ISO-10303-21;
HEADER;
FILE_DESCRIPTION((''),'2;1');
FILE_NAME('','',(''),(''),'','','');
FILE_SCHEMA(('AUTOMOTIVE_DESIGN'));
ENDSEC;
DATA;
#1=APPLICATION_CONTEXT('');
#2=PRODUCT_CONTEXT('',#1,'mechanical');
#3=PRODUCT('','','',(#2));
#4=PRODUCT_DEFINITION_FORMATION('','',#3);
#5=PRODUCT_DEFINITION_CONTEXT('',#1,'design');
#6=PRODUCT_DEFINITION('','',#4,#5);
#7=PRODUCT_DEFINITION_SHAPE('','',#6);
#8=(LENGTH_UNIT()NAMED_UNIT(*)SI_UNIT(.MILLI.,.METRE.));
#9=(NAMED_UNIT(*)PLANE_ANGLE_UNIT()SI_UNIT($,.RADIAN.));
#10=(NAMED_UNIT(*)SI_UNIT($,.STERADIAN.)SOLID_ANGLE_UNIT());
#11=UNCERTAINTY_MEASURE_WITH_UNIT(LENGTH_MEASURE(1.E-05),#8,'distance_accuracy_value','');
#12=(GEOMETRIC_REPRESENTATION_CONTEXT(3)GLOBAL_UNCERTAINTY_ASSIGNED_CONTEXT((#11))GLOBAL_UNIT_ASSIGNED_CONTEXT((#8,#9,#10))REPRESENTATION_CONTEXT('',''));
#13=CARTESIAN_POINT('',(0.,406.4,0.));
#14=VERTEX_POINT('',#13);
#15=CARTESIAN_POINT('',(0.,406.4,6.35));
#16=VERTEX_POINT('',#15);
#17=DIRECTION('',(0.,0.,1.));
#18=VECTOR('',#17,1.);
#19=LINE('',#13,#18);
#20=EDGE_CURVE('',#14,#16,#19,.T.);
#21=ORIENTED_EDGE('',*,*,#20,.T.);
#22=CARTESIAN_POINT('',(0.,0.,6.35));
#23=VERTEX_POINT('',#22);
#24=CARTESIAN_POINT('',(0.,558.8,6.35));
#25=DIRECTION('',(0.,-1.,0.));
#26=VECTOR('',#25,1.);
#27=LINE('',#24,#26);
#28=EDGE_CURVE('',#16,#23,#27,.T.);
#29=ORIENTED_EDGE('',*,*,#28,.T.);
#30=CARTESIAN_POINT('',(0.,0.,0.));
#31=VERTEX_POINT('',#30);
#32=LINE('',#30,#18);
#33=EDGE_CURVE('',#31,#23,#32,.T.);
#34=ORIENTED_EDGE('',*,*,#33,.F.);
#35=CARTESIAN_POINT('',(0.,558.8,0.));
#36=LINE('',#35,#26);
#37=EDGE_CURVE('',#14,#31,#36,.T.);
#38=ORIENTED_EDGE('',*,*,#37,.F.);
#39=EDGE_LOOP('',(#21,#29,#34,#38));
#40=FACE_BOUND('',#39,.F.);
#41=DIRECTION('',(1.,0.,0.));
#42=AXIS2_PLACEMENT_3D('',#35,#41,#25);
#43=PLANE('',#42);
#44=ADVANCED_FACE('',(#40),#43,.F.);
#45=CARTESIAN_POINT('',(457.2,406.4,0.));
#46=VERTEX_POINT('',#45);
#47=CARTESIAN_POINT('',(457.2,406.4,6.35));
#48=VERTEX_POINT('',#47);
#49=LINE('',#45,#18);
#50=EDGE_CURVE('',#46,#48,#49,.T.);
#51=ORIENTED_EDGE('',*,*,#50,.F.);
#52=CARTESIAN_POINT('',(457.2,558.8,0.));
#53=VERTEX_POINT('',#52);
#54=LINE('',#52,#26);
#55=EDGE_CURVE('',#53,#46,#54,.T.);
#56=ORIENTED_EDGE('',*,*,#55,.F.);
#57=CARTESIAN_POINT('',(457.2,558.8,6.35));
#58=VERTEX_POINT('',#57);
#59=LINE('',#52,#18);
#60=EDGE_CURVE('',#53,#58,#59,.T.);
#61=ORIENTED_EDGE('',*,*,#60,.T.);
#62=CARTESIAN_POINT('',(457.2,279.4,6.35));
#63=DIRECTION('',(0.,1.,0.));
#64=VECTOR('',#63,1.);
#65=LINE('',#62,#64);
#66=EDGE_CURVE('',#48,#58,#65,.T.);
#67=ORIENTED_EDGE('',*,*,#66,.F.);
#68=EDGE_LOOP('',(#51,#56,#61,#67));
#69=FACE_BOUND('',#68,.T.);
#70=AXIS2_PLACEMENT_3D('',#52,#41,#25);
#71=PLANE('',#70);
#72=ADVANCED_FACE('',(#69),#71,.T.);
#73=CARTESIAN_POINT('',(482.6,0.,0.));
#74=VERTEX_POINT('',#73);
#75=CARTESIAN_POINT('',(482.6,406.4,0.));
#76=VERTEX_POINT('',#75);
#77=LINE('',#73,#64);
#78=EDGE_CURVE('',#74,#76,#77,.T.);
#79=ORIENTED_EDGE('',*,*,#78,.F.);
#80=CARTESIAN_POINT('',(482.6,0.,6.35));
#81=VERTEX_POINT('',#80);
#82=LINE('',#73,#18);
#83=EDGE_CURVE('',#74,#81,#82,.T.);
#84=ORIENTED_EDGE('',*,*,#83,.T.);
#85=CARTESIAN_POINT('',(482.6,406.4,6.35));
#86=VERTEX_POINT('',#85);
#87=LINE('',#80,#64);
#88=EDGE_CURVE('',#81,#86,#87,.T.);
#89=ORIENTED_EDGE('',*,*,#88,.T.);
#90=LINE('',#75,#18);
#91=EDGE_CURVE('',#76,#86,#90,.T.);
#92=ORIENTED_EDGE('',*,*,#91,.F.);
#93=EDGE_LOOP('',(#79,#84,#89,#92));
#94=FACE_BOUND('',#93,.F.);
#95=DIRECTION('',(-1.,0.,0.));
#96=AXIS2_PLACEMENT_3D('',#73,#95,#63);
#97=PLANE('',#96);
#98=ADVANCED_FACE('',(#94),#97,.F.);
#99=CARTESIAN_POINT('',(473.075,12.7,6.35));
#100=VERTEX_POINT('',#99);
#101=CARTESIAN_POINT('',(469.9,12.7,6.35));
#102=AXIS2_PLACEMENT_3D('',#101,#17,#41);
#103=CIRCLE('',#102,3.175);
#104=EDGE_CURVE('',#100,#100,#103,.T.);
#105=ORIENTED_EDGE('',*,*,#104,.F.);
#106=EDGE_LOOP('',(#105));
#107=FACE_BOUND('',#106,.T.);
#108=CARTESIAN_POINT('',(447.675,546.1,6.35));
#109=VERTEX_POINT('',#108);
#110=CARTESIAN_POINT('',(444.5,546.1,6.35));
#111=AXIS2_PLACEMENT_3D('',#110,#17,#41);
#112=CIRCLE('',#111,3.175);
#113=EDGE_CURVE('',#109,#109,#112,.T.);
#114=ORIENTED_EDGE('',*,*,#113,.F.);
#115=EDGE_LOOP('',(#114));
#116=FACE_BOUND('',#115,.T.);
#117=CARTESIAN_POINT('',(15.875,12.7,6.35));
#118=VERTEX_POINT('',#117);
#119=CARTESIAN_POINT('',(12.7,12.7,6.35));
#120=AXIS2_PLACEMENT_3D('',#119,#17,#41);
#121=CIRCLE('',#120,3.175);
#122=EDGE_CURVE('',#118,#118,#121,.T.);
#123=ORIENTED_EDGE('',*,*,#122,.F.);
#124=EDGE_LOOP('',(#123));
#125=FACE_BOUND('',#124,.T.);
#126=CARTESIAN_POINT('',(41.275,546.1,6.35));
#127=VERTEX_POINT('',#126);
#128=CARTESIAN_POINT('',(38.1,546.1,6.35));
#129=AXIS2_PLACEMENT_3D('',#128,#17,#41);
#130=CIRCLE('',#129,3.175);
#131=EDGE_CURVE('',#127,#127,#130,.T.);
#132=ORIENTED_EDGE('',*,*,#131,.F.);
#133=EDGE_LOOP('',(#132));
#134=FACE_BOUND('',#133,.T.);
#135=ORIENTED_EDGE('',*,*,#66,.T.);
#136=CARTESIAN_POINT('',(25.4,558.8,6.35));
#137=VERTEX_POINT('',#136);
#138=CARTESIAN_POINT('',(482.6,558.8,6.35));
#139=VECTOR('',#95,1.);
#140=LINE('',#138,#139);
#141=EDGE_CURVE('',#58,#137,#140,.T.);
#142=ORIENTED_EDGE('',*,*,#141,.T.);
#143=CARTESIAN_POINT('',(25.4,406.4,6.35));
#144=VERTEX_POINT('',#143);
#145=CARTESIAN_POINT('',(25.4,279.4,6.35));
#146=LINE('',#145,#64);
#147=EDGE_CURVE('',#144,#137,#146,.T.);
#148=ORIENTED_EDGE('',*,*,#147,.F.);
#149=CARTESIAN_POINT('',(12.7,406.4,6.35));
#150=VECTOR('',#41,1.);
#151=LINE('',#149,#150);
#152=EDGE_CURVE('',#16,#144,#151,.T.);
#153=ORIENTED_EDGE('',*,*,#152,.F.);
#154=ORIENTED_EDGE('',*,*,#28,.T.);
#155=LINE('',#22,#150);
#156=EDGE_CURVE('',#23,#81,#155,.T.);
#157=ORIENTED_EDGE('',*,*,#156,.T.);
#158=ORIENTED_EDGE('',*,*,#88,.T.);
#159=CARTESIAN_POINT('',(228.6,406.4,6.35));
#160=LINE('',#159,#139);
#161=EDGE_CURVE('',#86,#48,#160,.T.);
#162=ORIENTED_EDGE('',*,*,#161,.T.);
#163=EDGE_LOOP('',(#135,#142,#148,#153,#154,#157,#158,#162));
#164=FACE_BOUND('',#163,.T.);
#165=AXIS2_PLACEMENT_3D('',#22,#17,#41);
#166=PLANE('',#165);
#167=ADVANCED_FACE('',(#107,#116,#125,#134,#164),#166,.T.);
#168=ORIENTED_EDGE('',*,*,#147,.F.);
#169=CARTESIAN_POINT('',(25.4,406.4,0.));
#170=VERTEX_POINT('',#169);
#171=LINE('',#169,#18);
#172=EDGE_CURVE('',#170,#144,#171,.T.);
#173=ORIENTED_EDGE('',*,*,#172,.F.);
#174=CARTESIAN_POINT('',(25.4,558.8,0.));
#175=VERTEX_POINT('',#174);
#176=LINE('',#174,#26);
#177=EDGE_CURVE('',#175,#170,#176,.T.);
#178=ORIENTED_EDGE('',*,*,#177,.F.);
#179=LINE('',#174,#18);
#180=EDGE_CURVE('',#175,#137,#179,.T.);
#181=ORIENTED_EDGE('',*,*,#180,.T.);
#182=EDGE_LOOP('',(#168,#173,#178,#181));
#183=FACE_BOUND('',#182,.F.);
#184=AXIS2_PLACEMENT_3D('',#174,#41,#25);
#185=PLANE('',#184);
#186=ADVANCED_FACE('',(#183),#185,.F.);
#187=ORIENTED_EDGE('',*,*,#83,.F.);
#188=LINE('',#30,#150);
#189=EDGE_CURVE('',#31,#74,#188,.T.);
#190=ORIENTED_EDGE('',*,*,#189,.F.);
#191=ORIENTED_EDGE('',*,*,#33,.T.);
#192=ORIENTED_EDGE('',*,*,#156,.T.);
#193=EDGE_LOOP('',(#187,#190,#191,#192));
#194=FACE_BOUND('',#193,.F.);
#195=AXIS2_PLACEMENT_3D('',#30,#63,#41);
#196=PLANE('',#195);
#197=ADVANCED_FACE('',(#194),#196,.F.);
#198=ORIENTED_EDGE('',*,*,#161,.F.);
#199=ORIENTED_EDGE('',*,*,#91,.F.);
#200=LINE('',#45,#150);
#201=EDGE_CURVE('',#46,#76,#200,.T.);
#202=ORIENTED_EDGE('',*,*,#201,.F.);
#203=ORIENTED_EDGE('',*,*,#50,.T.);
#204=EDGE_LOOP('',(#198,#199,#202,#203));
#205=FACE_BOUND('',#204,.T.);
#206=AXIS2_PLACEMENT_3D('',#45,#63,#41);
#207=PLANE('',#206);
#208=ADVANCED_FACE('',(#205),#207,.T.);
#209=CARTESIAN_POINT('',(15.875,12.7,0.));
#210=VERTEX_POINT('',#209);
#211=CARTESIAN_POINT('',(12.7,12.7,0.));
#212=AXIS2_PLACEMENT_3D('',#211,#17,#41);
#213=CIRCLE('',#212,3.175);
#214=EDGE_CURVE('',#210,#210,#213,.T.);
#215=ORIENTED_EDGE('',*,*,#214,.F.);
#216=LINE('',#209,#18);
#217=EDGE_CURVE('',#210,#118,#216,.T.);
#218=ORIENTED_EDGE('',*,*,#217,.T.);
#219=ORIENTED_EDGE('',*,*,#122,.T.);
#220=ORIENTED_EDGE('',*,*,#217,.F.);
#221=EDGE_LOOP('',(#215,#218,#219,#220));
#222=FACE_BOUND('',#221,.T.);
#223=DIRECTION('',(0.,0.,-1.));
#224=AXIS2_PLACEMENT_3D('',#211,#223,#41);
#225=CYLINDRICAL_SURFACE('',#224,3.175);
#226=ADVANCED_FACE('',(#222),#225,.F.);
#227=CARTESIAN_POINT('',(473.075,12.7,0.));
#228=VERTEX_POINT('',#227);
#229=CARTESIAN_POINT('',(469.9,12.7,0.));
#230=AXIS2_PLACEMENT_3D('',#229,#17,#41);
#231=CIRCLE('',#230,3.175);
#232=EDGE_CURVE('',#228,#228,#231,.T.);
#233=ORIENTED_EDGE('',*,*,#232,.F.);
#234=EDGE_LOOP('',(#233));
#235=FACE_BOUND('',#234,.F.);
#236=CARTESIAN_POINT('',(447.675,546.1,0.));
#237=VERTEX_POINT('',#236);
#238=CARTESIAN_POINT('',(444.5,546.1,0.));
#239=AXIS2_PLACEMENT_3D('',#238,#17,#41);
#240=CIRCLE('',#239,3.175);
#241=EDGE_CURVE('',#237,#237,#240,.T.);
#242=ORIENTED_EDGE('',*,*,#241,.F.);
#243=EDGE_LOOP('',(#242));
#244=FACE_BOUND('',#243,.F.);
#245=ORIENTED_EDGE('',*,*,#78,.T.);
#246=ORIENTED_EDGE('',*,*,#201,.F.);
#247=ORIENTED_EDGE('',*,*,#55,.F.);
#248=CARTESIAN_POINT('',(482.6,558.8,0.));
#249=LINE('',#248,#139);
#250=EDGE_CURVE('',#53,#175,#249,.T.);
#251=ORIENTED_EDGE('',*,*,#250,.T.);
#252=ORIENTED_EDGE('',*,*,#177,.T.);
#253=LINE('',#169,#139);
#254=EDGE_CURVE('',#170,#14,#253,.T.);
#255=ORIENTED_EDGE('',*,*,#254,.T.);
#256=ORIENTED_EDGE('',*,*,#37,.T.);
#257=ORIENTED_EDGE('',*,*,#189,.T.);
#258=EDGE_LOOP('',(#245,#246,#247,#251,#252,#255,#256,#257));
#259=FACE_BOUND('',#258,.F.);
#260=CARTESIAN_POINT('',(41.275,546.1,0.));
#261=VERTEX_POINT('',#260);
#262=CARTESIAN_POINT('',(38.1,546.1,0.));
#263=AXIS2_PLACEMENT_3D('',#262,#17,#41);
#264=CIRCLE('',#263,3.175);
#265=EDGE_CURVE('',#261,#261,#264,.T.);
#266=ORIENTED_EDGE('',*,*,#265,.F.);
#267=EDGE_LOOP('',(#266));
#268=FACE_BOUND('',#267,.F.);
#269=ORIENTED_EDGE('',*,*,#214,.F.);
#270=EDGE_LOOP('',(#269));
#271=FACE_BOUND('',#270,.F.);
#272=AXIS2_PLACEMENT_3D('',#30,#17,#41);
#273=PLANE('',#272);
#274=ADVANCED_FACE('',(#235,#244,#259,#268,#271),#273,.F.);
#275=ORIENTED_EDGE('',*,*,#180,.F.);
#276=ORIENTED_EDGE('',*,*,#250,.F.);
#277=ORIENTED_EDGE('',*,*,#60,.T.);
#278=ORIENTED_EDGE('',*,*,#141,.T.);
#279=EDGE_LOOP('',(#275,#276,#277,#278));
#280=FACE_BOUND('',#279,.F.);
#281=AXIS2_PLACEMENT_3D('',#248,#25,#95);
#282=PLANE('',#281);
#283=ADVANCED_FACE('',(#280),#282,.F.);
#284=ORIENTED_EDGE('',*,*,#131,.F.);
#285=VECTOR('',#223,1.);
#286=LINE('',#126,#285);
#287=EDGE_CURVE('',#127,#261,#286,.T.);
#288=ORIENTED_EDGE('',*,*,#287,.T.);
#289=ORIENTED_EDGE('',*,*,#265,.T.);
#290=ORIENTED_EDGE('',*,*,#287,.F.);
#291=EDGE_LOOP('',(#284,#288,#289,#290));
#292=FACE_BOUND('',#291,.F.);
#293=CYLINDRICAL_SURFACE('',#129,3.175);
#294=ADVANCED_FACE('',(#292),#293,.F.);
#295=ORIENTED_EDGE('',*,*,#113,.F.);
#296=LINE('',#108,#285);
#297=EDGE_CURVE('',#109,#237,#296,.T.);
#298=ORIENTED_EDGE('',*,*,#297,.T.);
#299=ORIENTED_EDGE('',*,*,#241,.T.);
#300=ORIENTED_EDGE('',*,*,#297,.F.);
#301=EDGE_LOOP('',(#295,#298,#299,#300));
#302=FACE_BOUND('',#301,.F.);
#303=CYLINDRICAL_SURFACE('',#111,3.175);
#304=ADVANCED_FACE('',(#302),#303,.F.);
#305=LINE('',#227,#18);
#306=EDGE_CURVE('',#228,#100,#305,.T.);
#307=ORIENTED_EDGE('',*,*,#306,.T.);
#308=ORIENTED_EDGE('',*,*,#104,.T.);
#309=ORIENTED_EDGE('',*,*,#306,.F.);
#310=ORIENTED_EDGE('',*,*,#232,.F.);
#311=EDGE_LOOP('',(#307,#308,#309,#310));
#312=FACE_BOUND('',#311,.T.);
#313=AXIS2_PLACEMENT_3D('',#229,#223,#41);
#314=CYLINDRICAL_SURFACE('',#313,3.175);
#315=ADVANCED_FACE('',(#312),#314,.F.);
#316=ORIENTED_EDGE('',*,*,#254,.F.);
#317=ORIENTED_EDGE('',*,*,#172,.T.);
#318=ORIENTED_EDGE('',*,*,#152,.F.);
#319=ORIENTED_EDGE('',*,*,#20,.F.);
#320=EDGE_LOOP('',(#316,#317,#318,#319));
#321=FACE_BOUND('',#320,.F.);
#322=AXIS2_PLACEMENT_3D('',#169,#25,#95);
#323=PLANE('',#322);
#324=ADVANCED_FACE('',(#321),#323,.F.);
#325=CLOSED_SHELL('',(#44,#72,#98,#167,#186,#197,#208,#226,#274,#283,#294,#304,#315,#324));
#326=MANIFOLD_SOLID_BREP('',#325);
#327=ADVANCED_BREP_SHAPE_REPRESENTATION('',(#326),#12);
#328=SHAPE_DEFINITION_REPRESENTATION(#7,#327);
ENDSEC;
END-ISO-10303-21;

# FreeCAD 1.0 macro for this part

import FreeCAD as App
import Part
import Sketcher
from FreeCAD import Vector
Q = App.Units.Quantity


def add_polygon(sketch, points):
    """Adds a closed chain of lines whose ends are joined by coincident constraints."""
    first, n = sketch.GeometryCount, len(points)
    for a, b in zip(points, points[1:] + points[:1]):
        sketch.addGeometry(Part.LineSegment(App.Vector(*a, 0), App.Vector(*b, 0)), False)
    for i in range(n):
        sketch.addConstraint(Sketcher.Constraint("Coincident", first + i, 2, first + (i + 1) % n, 1))

doc = App.newDocument("Part")
body = doc.addObject("PartDesign::Body", "Body")

# Sketch on XY plane
sketch1 = doc.addObject("Sketcher::SketchObject", "Sketch")
body.addObject(sketch1)
sketch1.AttachmentSupport = (doc.XY_Plane, [""])
sketch1.MapMode = "FlatFace"
add_polygon(sketch1, [(0, 558.8), (0, 0), (482.6, 0), (482.6, 558.8)])  # lines 0-3
sketch1.addGeometry(Part.Circle(Vector(12.7, 12.7, 0), Vector(0, 0, 1), 3.2), False)  # 4
sketch1.addGeometry(Part.Circle(Vector(469.9, 12.7, 0), Vector(0, 0, 1), 3.2), False)  # 5
sketch1.addConstraint([
    Sketcher.Constraint("Vertical", 0),
    Sketcher.Constraint("Horizontal", 1),
    Sketcher.Constraint("Vertical", 2),
    Sketcher.Constraint("Horizontal", 3),
    Sketcher.Constraint("Coincident", 0, 2, -1, 1),
    Sketcher.Constraint("Equal", 4, 5),
    Sketcher.Constraint("Horizontal", 4, 3, 5, 3),
    Sketcher.Constraint("Diameter", 4, Q("0.25 in")),
    Sketcher.Constraint("DistanceX", 1, 1, 1, 2, Q("19 in")),
    Sketcher.Constraint("DistanceY", 0, 2, 0, 1, Q("22 in")),
    Sketcher.Constraint("DistanceX", -1, 1, 4, 3, Q("0.5 in")),
    Sketcher.Constraint("DistanceY", -1, 1, 4, 3, Q("0.5 in")),
    Sketcher.Constraint("DistanceX", 5, 3, 1, 2, Q("0.5 in")),
])
pad1 = doc.addObject("PartDesign::Pad", "Pad")
body.addObject(pad1)
pad1.Profile = sketch1
pad1.Length = Q("0.25 in")

# Sketch on XY plane
sketch2 = doc.addObject("Sketcher::SketchObject", "Sketch001")
body.addObject(sketch2)
sketch2.AttachmentSupport = (doc.XY_Plane, [""])
sketch2.MapMode = "FlatFace"
add_polygon(sketch2, [(457, 406), (457, 559), (483, 559), (483, 406)])  # lines 0-3
add_polygon(sketch2, [(0, 406), (0, 559), (25, 559), (25, 406)])  # lines 4-7
sketch2.addConstraint([
    Sketcher.Constraint("Vertical", 0),
    Sketcher.Constraint("Horizontal", 1),
    Sketcher.Constraint("Vertical", 2),
    Sketcher.Constraint("Horizontal", 3),
    Sketcher.Constraint("Vertical", 4),
    Sketcher.Constraint("Horizontal", 5),
    Sketcher.Constraint("Vertical", 6),
    Sketcher.Constraint("Horizontal", 7),
    Sketcher.Constraint("PointOnObject", 4, 2, -2),
    Sketcher.Constraint("Horizontal", 1, 2, 4, 2),
    Sketcher.Constraint("Horizontal", 3, 2, 6, 2),
    Sketcher.Constraint("Equal", 3, 5),
    Sketcher.Constraint("DistanceX", 1, 1, 1, 2, Q("1 in")),
    Sketcher.Constraint("DistanceY", 0, 1, 0, 2, Q("6 in")),
    Sketcher.Constraint("DistanceX", -1, 1, 0, 2, Q("18 in")),
    Sketcher.Constraint("DistanceY", -1, 1, 0, 2, Q("22 in")),
])
pocket1 = doc.addObject("PartDesign::Pocket", "Pocket")
body.addObject(pocket1)
pocket1.Profile = sketch2
pocket1.Type = "ThroughAll"
pocket1.Reversed = True

# Sketch on XY plane
sketch3 = doc.addObject("Sketcher::SketchObject", "Sketch002")
body.addObject(sketch3)
sketch3.AttachmentSupport = (doc.XY_Plane, [""])
sketch3.MapMode = "FlatFace"
sketch3.AttachmentOffset = App.Placement(Vector(0, 0, 0.25 * 25.4), App.Rotation())
sketch3.addGeometry([
    Part.Circle(Vector(38.1, 546.1, 0), Vector(0, 0, 1), 3.2),
    Part.Circle(Vector(444.5, 546.1, 0), Vector(0, 0, 1), 3.2),
], False)
sketch3.addConstraint([
    Sketcher.Constraint("Equal", 0, 1),
    Sketcher.Constraint("Horizontal", 0, 3, 1, 3),
    Sketcher.Constraint("Diameter", 0, Q("0.25 in")),
    Sketcher.Constraint("DistanceX", 0, 3, 1, 3, Q("16 in")),
    Sketcher.Constraint("DistanceX", -1, 1, 0, 3, Q("1.5 in")),
    Sketcher.Constraint("DistanceY", -1, 1, 0, 3, Q("21.5 in")),
])
pocket2 = doc.addObject("PartDesign::Pocket", "Pocket001")
body.addObject(pocket2)
pocket2.Profile = sketch3
pocket2.Type = "ThroughAll"

doc.recompute()
